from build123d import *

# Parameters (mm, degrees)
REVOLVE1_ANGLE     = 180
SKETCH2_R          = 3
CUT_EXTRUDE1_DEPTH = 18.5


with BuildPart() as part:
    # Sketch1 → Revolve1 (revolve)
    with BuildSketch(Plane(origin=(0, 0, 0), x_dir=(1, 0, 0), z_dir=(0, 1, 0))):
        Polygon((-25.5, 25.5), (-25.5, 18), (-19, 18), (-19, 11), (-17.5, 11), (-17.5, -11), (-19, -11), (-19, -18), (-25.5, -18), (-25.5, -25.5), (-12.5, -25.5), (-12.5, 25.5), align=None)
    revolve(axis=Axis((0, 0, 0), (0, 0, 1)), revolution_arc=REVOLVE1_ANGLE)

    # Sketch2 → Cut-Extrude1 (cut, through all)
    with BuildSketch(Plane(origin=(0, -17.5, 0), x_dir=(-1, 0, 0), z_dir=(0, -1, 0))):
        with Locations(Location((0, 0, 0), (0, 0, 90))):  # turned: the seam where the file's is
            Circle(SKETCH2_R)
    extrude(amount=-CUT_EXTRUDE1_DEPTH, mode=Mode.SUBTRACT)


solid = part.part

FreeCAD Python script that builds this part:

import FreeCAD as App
import Part
import Sketcher
Q = App.Units.Quantity

doc = App.newDocument("Part")
body = doc.addObject("PartDesign::Body", "Body")

# Sketch on XZ plane
sketch1 = doc.addObject("Sketcher::SketchObject", "Sketch")
body.addObject(sketch1)
sketch1.AttachmentSupport = (doc.XZ_Plane, [""])
sketch1.MapMode = "FlatFace"
sketch1.addGeometry(Part.LineSegment(App.Vector(-25.5, -25.5, 0), App.Vector(-25.5, -18, 0)), False)
sketch1.addGeometry(Part.LineSegment(App.Vector(-25.5, -18, 0), App.Vector(-19, -18, 0)), False)
sketch1.addGeometry(Part.LineSegment(App.Vector(-19, -18, 0), App.Vector(-19, -11, 0)), False)
sketch1.addGeometry(Part.LineSegment(App.Vector(-19, -11, 0), App.Vector(-17.5, -11, 0)), False)
sketch1.addGeometry(Part.LineSegment(App.Vector(-17.5, -11, 0), App.Vector(-17.5, 11, 0)), False)
sketch1.addGeometry(Part.LineSegment(App.Vector(-17.5, 11, 0), App.Vector(-19, 11, 0)), False)
sketch1.addGeometry(Part.LineSegment(App.Vector(-19, 11, 0), App.Vector(-19, 18, 0)), False)
sketch1.addGeometry(Part.LineSegment(App.Vector(-19, 18, 0), App.Vector(-25.5, 18, 0)), False)
sketch1.addGeometry(Part.LineSegment(App.Vector(-25.5, 18, 0), App.Vector(-25.5, 25.5, 0)), False)
sketch1.addGeometry(Part.LineSegment(App.Vector(-25.5, 25.5, 0), App.Vector(-12.5, 25.5, 0)), False)
sketch1.addGeometry(Part.LineSegment(App.Vector(-12.5, 25.5, 0), App.Vector(-12.5, -25.5, 0)), False)
sketch1.addGeometry(Part.LineSegment(App.Vector(-12.5, -25.5, 0), App.Vector(-25.5, -25.5, 0)), False)
sketch1.addConstraint(Sketcher.Constraint("Coincident", 0, 2, 1, 1))
sketch1.addConstraint(Sketcher.Constraint("Coincident", 1, 2, 2, 1))
sketch1.addConstraint(Sketcher.Constraint("Coincident", 2, 2, 3, 1))
sketch1.addConstraint(Sketcher.Constraint("Coincident", 3, 2, 4, 1))
sketch1.addConstraint(Sketcher.Constraint("Coincident", 4, 2, 5, 1))
sketch1.addConstraint(Sketcher.Constraint("Coincident", 5, 2, 6, 1))
sketch1.addConstraint(Sketcher.Constraint("Coincident", 6, 2, 7, 1))
sketch1.addConstraint(Sketcher.Constraint("Coincident", 7, 2, 8, 1))
sketch1.addConstraint(Sketcher.Constraint("Coincident", 8, 2, 9, 1))
sketch1.addConstraint(Sketcher.Constraint("Coincident", 9, 2, 10, 1))
sketch1.addConstraint(Sketcher.Constraint("Coincident", 10, 2, 11, 1))
sketch1.addConstraint(Sketcher.Constraint("Coincident", 11, 2, 0, 1))
sketch1.addConstraint(Sketcher.Constraint("Vertical", 0))
sketch1.addConstraint(Sketcher.Constraint("Horizontal", 1))
sketch1.addConstraint(Sketcher.Constraint("Vertical", 2))
sketch1.addConstraint(Sketcher.Constraint("Horizontal", 3))
sketch1.addConstraint(Sketcher.Constraint("Vertical", 4))
sketch1.addConstraint(Sketcher.Constraint("Horizontal", 5))
sketch1.addConstraint(Sketcher.Constraint("Vertical", 6))
sketch1.addConstraint(Sketcher.Constraint("Horizontal", 7))
sketch1.addConstraint(Sketcher.Constraint("Vertical", 8))
sketch1.addConstraint(Sketcher.Constraint("Horizontal", 9))
sketch1.addConstraint(Sketcher.Constraint("Vertical", 10))
sketch1.addConstraint(Sketcher.Constraint("Horizontal", 11))
sketch1.addConstraint(Sketcher.Constraint("Symmetric", 2, 2, 5, 2, -1))
sketch1.addConstraint(Sketcher.Constraint("Symmetric", 0, 2, 7, 2, -1))
sketch1.addConstraint(Sketcher.Constraint("Equal", 0, 8))
sketch1.addConstraint(Sketcher.Constraint("DistanceX", 9, 1, 9, 2, Q("13 mm")))
sketch1.addConstraint(Sketcher.Constraint("DistanceY", 2, 1, 2, 2, Q("7 mm")))
sketch1.addConstraint(Sketcher.Constraint("DistanceY", 4, 1, 4, 2, Q("22 mm")))
sketch1.addConstraint(Sketcher.Constraint("DistanceY", 10, 2, 10, 1, Q("51 mm")))
sketch1.addConstraint(Sketcher.Constraint("DistanceX", 1, 1, 1, 2, Q("6.5 mm")))
sketch1.addConstraint(Sketcher.Constraint("DistanceX", 3, 1, 3, 2, Q("1.5 mm")))
sketch1.addConstraint(Sketcher.Constraint("DistanceX", 1, 2, -1, 1, Q("19 mm")))
revolution = doc.addObject("PartDesign::Revolution", "Revolution")
body.addObject(revolution)
revolution.Profile = sketch1
revolution.ReferenceAxis = (sketch1, ["V_Axis"])
revolution.Angle = 180

# Sketch on XZ plane
sketch2 = doc.addObject("Sketcher::SketchObject", "Sketch001")
body.addObject(sketch2)
sketch2.AttachmentSupport = (doc.XZ_Plane, [""])
sketch2.MapMode = "FlatFace"
sketch2.AttachmentOffset = App.Placement(App.Vector(0, 0, 17.5), App.Rotation())
sketch2.addGeometry(Part.Circle(App.Vector(0, 0, 0), App.Vector(0, 0, 1), 3), False)
sketch2.addConstraint(Sketcher.Constraint("Coincident", 0, 3, -1, 1))
sketch2.addConstraint(Sketcher.Constraint("Diameter", 0, Q("6 mm")))
pocket1 = doc.addObject("PartDesign::Pocket", "Pocket")
body.addObject(pocket1)
pocket1.Profile = sketch2
pocket1.Type = "ThroughAll"

doc.recompute()
